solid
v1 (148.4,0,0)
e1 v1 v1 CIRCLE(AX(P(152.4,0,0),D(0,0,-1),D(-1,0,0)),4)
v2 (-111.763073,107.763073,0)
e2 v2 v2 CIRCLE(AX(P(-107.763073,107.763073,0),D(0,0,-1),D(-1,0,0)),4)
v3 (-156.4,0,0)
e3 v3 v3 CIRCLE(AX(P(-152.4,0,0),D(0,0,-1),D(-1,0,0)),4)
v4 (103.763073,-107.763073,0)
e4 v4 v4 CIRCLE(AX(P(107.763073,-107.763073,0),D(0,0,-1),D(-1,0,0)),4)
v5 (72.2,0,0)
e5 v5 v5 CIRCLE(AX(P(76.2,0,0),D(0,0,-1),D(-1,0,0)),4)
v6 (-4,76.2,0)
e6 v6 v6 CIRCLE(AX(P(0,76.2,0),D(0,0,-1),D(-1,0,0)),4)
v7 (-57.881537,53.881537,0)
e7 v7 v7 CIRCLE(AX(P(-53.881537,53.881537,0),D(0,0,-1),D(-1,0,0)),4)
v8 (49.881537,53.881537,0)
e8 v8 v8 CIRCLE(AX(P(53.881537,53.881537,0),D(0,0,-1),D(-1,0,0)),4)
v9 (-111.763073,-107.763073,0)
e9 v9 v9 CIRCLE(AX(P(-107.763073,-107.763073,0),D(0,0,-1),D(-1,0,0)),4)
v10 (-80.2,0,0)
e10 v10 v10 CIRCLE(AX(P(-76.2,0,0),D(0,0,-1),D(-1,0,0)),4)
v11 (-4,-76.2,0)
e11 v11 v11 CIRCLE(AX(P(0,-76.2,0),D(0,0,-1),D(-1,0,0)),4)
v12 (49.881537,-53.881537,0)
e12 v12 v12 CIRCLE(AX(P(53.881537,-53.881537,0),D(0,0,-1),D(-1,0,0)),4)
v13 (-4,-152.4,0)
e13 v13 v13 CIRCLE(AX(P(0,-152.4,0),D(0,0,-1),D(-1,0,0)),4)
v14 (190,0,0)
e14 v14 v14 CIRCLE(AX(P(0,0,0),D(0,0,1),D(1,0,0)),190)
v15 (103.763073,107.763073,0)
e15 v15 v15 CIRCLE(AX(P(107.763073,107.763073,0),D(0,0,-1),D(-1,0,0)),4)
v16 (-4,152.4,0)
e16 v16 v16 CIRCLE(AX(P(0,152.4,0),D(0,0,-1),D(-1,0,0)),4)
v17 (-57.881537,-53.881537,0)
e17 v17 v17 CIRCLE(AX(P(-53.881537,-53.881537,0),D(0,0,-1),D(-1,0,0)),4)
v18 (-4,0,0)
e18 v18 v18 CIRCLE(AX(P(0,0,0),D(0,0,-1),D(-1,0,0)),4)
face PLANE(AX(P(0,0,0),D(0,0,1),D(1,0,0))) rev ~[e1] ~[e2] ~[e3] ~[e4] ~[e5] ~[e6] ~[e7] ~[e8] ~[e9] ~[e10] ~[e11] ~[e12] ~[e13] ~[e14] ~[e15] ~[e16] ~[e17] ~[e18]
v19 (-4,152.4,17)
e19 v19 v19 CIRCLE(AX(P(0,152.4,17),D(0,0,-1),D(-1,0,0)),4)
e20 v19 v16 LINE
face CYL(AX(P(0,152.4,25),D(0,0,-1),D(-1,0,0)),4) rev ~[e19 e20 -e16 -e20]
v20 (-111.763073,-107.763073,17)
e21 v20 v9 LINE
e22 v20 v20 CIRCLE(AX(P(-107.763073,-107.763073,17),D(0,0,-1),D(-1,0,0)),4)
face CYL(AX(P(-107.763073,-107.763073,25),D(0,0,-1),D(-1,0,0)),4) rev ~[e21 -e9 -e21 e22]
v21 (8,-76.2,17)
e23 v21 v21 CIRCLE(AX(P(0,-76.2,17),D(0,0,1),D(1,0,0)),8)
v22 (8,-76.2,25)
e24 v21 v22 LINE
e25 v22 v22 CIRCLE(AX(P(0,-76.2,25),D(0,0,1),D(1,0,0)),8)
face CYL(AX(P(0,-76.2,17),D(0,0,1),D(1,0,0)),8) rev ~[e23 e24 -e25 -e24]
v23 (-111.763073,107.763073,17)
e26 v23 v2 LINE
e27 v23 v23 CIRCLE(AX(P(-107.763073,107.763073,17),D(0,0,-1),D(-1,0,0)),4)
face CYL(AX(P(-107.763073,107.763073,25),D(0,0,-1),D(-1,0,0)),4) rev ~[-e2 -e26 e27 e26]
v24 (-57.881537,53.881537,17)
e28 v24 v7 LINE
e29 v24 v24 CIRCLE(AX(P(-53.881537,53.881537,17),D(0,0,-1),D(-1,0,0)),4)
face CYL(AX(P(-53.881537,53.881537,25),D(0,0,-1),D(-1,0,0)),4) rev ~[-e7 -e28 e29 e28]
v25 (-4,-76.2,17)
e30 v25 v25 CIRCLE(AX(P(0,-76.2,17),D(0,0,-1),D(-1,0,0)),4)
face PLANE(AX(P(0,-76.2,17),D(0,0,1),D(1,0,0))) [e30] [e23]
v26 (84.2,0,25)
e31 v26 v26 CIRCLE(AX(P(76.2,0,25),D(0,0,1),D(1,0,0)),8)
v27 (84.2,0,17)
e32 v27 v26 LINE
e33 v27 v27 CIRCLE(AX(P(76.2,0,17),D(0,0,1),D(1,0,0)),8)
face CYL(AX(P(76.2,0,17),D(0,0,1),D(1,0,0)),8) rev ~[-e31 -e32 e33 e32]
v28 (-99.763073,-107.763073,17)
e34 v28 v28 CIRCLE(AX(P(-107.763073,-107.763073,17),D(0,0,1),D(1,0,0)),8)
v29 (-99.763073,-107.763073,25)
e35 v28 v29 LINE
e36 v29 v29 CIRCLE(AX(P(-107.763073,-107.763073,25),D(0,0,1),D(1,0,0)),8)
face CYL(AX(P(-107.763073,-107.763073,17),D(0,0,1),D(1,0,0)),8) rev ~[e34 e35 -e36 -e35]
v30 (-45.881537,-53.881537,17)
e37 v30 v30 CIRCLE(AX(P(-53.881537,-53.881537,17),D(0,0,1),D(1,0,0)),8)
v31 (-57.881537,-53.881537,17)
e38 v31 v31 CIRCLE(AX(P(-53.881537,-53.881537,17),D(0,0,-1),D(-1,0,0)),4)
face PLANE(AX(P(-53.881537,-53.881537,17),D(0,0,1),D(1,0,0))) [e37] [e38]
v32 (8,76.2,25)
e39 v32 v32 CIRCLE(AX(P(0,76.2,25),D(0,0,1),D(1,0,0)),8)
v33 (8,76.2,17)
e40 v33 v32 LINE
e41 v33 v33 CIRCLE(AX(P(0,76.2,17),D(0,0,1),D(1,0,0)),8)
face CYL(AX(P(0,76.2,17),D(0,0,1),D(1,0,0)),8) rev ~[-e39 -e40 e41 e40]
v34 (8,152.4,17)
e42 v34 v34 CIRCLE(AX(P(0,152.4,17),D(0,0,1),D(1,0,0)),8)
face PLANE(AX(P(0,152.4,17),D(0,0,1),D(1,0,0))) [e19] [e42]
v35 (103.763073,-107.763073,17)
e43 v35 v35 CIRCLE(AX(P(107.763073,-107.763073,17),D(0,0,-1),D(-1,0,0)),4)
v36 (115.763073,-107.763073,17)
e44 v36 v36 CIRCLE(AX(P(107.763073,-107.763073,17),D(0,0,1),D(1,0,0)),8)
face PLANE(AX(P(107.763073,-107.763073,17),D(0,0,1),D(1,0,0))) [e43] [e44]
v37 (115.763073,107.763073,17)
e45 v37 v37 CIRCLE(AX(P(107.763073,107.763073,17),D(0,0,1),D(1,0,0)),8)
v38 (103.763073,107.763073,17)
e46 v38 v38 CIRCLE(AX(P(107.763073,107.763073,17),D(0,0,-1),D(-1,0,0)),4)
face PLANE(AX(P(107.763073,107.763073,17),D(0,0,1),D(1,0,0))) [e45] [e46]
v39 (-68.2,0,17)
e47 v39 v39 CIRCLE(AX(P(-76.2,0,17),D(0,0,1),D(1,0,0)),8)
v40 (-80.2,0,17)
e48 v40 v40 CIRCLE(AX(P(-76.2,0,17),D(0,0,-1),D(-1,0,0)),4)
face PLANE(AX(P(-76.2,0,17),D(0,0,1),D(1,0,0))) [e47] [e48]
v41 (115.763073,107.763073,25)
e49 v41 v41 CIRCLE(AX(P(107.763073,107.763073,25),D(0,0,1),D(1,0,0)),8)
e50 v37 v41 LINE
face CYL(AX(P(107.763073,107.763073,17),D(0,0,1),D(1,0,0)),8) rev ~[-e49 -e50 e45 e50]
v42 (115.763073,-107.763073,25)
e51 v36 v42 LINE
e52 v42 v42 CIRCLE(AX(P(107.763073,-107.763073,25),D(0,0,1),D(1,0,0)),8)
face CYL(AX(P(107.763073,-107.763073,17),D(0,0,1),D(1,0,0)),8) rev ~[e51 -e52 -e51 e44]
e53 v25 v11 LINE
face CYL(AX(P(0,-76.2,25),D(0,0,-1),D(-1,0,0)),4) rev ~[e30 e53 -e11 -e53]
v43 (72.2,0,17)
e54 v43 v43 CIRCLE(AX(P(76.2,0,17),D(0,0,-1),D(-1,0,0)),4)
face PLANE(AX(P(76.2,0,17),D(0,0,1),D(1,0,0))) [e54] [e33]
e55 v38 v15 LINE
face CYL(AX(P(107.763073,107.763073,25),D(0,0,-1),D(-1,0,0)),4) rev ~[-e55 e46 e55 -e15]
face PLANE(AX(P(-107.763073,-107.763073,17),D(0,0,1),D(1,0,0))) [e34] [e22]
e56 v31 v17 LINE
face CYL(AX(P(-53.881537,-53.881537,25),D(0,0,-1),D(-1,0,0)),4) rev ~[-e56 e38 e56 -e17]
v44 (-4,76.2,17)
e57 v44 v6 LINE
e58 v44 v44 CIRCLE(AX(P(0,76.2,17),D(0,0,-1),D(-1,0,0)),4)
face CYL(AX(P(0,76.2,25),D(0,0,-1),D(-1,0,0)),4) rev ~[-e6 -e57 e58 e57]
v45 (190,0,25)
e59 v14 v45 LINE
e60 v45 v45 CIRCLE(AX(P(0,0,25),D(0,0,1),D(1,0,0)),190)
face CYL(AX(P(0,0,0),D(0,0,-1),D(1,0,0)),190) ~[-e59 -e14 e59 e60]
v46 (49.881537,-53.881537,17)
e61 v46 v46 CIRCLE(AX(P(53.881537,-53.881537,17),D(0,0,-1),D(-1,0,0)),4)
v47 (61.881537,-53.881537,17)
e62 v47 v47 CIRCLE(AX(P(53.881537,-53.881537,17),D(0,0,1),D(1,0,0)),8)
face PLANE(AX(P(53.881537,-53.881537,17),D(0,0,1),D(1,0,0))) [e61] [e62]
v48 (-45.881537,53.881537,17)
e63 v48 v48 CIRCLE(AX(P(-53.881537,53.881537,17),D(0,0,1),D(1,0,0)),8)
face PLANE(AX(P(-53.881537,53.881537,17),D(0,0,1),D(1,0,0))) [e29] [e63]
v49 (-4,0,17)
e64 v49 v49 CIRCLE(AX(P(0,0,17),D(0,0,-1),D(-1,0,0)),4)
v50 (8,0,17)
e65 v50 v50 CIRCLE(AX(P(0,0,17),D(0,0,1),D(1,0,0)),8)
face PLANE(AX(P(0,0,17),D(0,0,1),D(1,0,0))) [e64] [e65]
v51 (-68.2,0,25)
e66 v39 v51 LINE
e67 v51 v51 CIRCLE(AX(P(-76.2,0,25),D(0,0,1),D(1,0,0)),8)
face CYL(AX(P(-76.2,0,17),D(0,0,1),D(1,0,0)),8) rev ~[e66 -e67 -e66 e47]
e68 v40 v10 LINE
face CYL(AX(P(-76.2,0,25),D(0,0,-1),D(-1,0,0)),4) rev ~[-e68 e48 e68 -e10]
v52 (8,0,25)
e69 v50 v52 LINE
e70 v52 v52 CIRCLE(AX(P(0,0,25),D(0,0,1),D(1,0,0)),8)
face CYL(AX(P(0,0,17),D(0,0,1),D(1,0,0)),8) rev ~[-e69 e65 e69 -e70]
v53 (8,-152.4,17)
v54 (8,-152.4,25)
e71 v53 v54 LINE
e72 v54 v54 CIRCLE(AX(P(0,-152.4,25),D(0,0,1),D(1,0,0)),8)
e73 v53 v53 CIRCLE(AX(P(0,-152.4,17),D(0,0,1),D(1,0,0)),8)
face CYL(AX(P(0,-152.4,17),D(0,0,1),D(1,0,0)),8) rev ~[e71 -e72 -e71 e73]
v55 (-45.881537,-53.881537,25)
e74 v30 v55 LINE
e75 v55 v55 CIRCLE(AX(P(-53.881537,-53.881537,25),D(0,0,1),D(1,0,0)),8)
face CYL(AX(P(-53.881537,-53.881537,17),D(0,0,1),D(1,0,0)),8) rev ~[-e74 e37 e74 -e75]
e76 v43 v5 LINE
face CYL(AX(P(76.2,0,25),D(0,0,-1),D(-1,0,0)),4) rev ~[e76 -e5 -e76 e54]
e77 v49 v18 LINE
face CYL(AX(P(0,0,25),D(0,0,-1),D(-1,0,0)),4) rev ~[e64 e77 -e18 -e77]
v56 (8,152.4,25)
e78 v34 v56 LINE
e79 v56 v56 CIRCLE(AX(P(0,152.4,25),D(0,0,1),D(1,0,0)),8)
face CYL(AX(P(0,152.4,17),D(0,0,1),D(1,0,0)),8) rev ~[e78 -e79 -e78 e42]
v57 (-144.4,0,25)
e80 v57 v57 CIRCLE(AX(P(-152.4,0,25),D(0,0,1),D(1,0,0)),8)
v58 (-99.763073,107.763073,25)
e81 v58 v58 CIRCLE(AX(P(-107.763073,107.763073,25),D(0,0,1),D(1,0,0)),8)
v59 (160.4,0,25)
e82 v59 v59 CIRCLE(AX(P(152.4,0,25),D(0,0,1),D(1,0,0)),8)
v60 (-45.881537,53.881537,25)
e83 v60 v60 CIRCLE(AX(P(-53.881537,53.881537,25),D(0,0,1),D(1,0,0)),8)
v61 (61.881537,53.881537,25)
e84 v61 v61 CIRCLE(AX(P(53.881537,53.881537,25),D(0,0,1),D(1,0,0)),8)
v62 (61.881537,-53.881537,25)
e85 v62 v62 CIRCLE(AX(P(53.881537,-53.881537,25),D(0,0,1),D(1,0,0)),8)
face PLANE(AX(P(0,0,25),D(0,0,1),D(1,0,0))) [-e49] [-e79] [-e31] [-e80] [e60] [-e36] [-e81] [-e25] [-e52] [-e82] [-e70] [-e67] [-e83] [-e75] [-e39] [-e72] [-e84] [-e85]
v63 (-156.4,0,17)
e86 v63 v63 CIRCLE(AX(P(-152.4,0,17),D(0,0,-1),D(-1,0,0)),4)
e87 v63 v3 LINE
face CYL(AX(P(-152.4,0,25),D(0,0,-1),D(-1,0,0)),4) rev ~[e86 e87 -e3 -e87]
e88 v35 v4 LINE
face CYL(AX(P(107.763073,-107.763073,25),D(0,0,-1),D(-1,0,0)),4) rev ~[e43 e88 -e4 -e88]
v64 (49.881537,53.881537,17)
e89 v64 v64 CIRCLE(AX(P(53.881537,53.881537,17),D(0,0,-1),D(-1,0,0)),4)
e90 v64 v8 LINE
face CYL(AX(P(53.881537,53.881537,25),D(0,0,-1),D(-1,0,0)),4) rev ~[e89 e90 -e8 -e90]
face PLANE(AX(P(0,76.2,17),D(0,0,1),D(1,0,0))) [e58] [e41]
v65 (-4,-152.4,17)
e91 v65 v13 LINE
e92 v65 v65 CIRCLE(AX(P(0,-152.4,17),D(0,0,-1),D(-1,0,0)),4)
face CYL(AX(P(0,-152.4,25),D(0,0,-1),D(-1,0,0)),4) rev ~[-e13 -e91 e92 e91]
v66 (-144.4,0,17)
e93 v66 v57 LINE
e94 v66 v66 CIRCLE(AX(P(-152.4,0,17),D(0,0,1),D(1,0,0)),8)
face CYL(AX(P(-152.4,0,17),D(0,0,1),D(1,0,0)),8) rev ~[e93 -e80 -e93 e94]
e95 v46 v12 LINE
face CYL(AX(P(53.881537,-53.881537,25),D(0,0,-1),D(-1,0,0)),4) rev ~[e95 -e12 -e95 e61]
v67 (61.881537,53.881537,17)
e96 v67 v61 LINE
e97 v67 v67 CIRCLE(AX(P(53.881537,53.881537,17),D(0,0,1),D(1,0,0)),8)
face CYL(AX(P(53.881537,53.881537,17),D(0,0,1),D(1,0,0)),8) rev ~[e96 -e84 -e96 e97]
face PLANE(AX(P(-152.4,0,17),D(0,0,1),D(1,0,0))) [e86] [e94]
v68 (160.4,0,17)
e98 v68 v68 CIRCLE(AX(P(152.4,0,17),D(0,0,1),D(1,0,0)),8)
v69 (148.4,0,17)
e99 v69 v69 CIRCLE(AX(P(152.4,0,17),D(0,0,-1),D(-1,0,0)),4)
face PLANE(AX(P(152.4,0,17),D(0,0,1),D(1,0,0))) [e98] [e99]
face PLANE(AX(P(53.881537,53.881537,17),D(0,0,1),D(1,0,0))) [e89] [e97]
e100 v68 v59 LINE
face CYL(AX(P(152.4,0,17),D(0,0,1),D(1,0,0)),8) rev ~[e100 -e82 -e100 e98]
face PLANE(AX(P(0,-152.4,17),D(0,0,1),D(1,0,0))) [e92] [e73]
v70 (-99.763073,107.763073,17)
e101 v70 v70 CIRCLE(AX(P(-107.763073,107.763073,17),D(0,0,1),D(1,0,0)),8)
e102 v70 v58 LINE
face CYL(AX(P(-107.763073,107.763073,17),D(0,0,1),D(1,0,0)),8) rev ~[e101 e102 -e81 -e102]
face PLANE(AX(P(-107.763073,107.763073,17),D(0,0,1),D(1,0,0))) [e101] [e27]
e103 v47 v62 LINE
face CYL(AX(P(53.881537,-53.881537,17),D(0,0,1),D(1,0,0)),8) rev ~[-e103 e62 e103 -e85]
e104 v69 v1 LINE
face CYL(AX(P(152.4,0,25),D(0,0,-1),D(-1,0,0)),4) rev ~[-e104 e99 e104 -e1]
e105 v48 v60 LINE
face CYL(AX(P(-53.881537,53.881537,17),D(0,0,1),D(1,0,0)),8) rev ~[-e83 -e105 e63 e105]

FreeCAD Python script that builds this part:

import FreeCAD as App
import Part
import Sketcher

V = App.Vector
Q = App.Units.Quantity

doc = App.newDocument("Part")
body = doc.addObject("PartDesign::Body", "Body")

# Sketch on XY plane
sketch1 = body.newObject("Sketcher::SketchObject", "Sketch")
sketch1.AttachmentSupport = (doc.getObject("XY_Plane"), [""])
sketch1.MapMode = "FlatFace"
sketch1.addGeometry(Part.Circle(V(0, 0, 0), V(0, 0, 1), 190), False)
sketch1.addConstraint([
    Sketcher.Constraint("Coincident", 0, 3, -1, 1),
    Sketcher.Constraint("Diameter", 0, Q("380 mm")),
])
pad1 = body.newObject("PartDesign::Pad", "Pad")
pad1.Profile = sketch1
pad1.Length = 25

# Sketch on XY plane
sketch2 = body.newObject("Sketcher::SketchObject", "Sketch001")
sketch2.AttachmentSupport = (doc.getObject("XY_Plane"), [""])
sketch2.MapMode = "FlatFace"
sketch2.AttachmentOffset = App.Placement(V(0, 0, 25), App.Rotation())
sketch2.addGeometry([
    Part.Circle(V(-152.4, 0, 0), V(0, 0, 1), 4),  # 0
    Part.Circle(V(-76.2, 0, 0), V(0, 0, 1), 4),  # 1
    Part.Circle(V(0, 0, 0), V(0, 0, 1), 4),  # 2
    Part.Circle(V(76.2, 0, 0), V(0, 0, 1), 4),  # 3
    Part.Circle(V(152.4, 0, 0), V(0, 0, 1), 4),  # 4
    Part.Circle(V(53.9, -53.9, 0), V(0, 0, 1), 4),  # 5
    Part.Circle(V(107.8, -107.8, 0), V(0, 0, 1), 4),  # 6
    Part.Circle(V(0, -152.4, 0), V(0, 0, 1), 4),  # 7
    Part.Circle(V(0, -76.2, 0), V(0, 0, 1), 4),  # 8
    Part.Circle(V(-53.9, -53.9, 0), V(0, 0, 1), 4),  # 9
    Part.Circle(V(-107.8, -107.8, 0), V(0, 0, 1), 4),  # 10
    Part.Circle(V(-53.9, 53.9, 0), V(0, 0, 1), 4),  # 11
    Part.Circle(V(53.9, 53.9, 0), V(0, 0, 1), 4),  # 12
    Part.Circle(V(0, 76.2, 0), V(0, 0, 1), 4),  # 13
    Part.Circle(V(107.8, 107.8, 0), V(0, 0, 1), 4),  # 14
    Part.Circle(V(0, 152.4, 0), V(0, 0, 1), 4),  # 15
    Part.Circle(V(-107.8, 107.8, 0), V(0, 0, 1), 4),  # 16
], False)
sketch2.addConstraint([
    Sketcher.Constraint("Coincident", 2, 3, -1, 1),
    Sketcher.Constraint("Equal", 0, 1),
    Sketcher.Constraint("Equal", 1, 2),
    Sketcher.Constraint("Equal", 2, 3),
    Sketcher.Constraint("Equal", 3, 4),
    Sketcher.Constraint("Equal", 4, 5),
    Sketcher.Constraint("Equal", 5, 6),
    Sketcher.Constraint("Equal", 6, 7),
    Sketcher.Constraint("Equal", 7, 8),
    Sketcher.Constraint("Equal", 8, 9),
    Sketcher.Constraint("Equal", 9, 10),
    Sketcher.Constraint("Equal", 10, 11),
    Sketcher.Constraint("Equal", 11, 12),
    Sketcher.Constraint("Equal", 12, 13),
    Sketcher.Constraint("Equal", 13, 14),
    Sketcher.Constraint("Equal", 14, 15),
    Sketcher.Constraint("Equal", 15, 16),
    Sketcher.Constraint("Symmetric", 1, 3, 3, 3, -1, 1),
    Sketcher.Constraint("Symmetric", 0, 3, 4, 3, -1, 1),
    Sketcher.Constraint("Symmetric", 5, 3, 11, 3, -1, 1),
    Sketcher.Constraint("Symmetric", 9, 3, 12, 3, -1, 1),
    Sketcher.Constraint("Symmetric", 8, 3, 13, 3, -1, 1),
    Sketcher.Constraint("Symmetric", 10, 3, 14, 3, -1, 1),
    Sketcher.Constraint("Symmetric", 7, 3, 15, 3, -1, 1),
    Sketcher.Constraint("Symmetric", 6, 3, 16, 3, -1, 1),
    Sketcher.Constraint("Symmetric", 5, 3, 9, 3, -2),
    Sketcher.Constraint("Symmetric", 6, 3, 10, 3, -2),
    Sketcher.Constraint("PointOnObject", 0, 3, -1),
    Sketcher.Constraint("PointOnObject", 1, 3, -1),
    Sketcher.Constraint("PointOnObject", 7, 3, -2),
    Sketcher.Constraint("PointOnObject", 8, 3, -2),
    Sketcher.Constraint("Diameter", 0, Q("8 mm")),
    Sketcher.Constraint("DistanceX", 0, 3, -1, 1, Q("152.4 mm")),
    Sketcher.Constraint("DistanceX", 1, 3, -1, 1, Q("76.2 mm")),
    Sketcher.Constraint("DistanceY", 7, 3, -1, 1, Q("152.4 mm")),
    Sketcher.Constraint("DistanceY", 8, 3, -1, 1, Q("76.2 mm")),
    Sketcher.Constraint("DistanceX", -1, 1, 5, 3, Q("53.881537 mm")),
    Sketcher.Constraint("DistanceY", 5, 3, -1, 1, Q("53.881537 mm")),
    Sketcher.Constraint("DistanceX", -1, 1, 6, 3, Q("107.763073 mm")),
    Sketcher.Constraint("DistanceY", 6, 3, -1, 1, Q("107.763073 mm")),
])
doc.recompute()
hole = body.newObject("PartDesign::Hole", "Hole")
hole.Profile = sketch2
hole.ThreadType = "None"
hole.Diameter = 8
hole.DepthType = "ThroughAll"
hole.HoleCutType = "Counterbore"
hole.HoleCutDiameter = 16
hole.HoleCutDepth = 8

doc.recompute()
